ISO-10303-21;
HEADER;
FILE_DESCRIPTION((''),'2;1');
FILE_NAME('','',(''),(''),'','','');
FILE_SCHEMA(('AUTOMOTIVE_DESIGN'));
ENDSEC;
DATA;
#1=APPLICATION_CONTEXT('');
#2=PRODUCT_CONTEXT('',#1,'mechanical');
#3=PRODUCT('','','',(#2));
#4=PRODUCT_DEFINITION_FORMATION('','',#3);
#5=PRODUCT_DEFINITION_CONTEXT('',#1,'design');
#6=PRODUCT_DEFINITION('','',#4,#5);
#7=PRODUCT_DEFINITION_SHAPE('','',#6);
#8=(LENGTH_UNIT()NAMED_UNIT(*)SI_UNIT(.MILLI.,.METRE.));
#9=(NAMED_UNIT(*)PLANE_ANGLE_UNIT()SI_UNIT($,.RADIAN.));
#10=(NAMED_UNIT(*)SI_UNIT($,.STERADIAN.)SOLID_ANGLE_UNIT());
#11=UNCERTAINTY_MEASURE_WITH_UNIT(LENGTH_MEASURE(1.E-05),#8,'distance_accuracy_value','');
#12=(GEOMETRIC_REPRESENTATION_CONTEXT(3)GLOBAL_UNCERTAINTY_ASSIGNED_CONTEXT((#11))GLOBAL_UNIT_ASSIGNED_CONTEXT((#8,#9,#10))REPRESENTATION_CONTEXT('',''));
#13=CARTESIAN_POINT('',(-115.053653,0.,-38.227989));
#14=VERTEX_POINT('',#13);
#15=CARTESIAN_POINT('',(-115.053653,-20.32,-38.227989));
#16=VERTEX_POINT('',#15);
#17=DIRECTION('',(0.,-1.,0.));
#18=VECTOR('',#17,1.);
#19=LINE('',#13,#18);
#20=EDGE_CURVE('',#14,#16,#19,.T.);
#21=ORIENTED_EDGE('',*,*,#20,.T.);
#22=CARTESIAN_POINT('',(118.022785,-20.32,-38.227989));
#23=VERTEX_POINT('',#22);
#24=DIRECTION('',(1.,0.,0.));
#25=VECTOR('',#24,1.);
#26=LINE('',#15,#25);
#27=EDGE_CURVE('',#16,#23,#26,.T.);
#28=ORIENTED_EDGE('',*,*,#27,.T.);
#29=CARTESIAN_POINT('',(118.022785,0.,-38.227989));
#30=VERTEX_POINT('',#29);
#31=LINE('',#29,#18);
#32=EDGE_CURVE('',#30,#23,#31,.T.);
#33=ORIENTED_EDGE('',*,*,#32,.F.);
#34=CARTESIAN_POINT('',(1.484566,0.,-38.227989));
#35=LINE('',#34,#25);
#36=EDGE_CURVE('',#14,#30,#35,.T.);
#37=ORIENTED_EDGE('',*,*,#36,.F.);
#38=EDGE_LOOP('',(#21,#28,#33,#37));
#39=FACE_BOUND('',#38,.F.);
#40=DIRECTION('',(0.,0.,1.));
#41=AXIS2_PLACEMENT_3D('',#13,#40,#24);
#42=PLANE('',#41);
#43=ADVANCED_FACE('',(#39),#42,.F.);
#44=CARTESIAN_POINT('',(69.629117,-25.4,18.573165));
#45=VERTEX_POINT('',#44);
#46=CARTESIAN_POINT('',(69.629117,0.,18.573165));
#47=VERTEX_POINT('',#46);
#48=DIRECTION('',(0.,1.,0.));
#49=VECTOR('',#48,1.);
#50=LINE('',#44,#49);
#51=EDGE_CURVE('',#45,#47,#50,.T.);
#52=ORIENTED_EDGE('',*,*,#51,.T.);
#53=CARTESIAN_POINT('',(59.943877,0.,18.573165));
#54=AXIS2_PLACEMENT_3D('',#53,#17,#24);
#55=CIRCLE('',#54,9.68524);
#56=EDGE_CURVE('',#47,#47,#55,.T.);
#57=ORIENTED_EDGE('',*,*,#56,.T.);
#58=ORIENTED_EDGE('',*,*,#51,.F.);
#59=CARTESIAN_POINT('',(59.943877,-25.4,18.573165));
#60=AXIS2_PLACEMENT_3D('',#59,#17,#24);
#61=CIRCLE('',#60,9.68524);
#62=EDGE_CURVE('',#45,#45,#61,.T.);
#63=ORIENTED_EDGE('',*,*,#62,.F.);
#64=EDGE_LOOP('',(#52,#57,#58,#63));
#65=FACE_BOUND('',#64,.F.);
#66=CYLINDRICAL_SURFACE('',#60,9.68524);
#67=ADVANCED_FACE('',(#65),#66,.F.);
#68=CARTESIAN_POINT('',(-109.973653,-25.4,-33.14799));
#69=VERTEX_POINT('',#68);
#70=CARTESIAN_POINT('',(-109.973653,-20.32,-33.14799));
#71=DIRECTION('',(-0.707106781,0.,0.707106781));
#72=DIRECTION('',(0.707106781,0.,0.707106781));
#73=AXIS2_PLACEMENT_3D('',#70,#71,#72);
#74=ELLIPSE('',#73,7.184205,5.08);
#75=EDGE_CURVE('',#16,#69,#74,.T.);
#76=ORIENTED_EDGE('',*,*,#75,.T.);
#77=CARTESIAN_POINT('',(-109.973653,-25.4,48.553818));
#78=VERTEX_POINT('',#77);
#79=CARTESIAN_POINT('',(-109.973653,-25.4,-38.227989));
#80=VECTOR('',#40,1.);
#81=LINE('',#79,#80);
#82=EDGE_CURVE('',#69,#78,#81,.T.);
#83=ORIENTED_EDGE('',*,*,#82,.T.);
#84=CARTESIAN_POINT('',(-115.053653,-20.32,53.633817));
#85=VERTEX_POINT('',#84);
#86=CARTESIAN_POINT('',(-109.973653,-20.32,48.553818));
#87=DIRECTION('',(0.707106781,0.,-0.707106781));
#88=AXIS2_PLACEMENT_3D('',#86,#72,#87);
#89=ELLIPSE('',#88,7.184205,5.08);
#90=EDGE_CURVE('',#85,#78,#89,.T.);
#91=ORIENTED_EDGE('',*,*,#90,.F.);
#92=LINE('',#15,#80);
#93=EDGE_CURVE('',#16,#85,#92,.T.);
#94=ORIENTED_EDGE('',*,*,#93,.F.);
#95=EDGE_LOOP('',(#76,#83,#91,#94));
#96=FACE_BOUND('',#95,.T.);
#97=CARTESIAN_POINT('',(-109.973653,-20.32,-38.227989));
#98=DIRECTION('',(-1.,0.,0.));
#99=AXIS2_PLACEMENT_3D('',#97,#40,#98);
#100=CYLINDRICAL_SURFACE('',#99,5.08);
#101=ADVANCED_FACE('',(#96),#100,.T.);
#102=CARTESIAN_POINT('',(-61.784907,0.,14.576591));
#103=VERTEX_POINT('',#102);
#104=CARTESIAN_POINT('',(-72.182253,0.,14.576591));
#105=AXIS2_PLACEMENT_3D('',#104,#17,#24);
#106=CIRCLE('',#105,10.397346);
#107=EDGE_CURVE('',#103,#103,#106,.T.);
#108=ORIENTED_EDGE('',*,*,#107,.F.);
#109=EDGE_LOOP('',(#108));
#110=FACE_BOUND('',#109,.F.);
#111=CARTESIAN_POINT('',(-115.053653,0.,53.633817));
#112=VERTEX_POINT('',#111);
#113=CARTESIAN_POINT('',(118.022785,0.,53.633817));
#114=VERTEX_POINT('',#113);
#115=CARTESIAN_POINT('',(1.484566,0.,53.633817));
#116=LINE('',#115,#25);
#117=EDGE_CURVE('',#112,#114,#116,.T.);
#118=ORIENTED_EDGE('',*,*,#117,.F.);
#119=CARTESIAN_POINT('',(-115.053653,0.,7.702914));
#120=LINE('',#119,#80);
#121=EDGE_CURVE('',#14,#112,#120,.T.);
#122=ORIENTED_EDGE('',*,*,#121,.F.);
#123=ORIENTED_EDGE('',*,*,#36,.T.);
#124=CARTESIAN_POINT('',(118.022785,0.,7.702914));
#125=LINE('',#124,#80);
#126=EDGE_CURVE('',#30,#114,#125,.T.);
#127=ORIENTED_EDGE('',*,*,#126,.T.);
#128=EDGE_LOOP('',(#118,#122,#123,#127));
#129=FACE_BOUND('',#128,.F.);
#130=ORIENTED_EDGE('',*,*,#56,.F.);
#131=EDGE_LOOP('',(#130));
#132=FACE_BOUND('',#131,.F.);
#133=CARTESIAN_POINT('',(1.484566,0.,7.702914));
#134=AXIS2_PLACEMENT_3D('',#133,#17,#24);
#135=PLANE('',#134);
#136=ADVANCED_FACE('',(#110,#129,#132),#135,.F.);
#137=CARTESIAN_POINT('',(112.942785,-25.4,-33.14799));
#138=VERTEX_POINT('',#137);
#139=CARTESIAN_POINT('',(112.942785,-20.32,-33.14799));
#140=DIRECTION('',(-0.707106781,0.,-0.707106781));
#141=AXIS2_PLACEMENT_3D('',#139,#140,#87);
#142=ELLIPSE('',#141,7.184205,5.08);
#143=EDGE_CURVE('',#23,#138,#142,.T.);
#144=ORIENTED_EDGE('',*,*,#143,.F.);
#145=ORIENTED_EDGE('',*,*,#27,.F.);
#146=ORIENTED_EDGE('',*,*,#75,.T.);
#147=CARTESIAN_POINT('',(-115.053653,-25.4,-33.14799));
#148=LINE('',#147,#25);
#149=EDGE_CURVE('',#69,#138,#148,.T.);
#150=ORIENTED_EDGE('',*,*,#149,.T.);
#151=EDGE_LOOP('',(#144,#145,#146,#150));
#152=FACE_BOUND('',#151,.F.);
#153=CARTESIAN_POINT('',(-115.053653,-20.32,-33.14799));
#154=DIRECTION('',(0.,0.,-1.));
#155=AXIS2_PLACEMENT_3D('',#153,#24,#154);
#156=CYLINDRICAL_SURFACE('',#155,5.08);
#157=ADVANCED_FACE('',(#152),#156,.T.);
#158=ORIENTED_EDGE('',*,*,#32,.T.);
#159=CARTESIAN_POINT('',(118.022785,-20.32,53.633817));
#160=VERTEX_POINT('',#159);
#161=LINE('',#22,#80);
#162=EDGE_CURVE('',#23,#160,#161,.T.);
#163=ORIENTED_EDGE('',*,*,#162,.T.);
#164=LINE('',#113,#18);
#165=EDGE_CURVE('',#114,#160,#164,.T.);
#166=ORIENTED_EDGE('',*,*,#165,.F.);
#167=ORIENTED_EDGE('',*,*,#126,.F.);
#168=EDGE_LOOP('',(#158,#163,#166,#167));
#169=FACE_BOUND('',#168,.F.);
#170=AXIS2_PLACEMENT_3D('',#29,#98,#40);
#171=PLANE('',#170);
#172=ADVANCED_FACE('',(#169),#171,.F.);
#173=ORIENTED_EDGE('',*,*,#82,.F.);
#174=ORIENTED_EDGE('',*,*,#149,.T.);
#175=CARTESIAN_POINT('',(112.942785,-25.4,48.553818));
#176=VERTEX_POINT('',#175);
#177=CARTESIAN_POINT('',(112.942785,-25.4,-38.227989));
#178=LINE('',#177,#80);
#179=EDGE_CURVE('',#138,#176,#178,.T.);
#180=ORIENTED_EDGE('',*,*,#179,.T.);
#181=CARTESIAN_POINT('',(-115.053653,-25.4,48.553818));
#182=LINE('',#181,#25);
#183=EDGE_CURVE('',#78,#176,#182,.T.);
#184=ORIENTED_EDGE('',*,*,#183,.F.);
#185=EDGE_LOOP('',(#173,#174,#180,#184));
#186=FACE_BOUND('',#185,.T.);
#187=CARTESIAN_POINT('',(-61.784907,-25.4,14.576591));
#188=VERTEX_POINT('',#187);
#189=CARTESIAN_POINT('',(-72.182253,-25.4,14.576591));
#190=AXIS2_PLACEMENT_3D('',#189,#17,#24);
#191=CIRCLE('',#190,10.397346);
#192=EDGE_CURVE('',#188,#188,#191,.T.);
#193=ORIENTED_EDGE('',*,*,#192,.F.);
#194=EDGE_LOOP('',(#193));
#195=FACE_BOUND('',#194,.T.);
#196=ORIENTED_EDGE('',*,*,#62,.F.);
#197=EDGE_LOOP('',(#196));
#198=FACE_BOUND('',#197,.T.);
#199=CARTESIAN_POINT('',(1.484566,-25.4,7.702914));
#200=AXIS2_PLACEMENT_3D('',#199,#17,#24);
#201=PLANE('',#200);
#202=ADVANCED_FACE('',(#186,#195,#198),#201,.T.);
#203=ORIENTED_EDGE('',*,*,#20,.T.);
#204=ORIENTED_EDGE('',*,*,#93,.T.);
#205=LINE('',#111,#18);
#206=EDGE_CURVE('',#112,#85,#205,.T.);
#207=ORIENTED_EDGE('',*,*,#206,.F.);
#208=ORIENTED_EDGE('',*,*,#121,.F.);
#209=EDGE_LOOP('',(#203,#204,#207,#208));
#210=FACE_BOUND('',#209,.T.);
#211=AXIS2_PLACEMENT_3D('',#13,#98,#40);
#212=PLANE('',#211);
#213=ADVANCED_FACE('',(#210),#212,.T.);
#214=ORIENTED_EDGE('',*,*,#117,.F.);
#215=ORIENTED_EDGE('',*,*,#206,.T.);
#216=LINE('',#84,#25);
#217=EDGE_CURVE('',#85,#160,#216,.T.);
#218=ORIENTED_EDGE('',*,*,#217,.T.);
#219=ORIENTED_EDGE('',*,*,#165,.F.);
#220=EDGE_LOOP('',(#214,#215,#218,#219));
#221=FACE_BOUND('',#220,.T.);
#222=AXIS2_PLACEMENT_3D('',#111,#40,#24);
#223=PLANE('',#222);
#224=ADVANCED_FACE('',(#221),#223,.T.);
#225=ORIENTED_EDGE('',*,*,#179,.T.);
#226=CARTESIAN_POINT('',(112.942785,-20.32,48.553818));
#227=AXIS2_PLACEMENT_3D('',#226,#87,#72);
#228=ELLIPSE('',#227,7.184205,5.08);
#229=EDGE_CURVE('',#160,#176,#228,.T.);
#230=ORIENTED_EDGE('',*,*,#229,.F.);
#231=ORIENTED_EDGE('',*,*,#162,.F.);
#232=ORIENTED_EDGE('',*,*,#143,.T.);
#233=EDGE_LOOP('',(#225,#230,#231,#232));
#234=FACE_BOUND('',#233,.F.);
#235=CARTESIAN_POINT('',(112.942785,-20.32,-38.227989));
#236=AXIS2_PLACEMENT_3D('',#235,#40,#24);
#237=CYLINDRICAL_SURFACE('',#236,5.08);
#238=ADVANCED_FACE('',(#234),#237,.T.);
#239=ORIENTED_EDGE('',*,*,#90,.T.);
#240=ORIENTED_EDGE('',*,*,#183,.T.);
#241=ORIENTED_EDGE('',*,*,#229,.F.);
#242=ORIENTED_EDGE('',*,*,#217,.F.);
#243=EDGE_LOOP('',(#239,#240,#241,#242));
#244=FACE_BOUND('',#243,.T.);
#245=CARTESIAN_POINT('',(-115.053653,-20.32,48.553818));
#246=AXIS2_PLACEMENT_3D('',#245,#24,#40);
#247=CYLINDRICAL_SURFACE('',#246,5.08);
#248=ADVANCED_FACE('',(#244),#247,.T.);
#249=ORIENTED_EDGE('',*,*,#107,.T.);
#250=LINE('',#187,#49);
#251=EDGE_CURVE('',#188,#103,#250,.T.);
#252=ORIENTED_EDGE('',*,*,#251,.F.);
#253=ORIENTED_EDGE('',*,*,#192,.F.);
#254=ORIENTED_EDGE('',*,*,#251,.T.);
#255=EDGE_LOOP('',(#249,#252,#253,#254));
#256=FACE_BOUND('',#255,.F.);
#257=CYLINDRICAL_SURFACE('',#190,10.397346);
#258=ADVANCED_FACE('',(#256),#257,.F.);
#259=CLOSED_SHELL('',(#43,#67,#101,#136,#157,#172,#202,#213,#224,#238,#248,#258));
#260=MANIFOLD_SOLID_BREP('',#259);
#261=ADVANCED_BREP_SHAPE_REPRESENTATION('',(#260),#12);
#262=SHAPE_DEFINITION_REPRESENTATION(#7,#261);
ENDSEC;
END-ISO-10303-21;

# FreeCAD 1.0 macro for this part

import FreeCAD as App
import Part
import Sketcher
Q = App.Units.Quantity


def edges_at(feature, points):
    """Names of the edges that pass closest to the given points."""
    edges = feature.Shape.Edges
    near = lambda p: min(range(len(edges)), key=lambda i: edges[i].distToShape(Part.Vertex(*p))[0])
    return sorted({f"Edge{near(p) + 1}" for p in points})

doc = App.newDocument("Part")
body = doc.addObject("PartDesign::Body", "Body")

# Sketch on XZ plane
sketch1 = body.newObject("Sketcher::SketchObject", "Sketch")
sketch1.AttachmentSupport = (doc.getObject("XZ_Plane"), [""])
sketch1.MapMode = "FlatFace"
sketch1.addGeometry([
    Part.LineSegment(App.Vector(-115, 54, 0), App.Vector(-115, -38, 0)),
    Part.LineSegment(App.Vector(-115, -38, 0), App.Vector(118, -38, 0)),
    Part.LineSegment(App.Vector(118, -38, 0), App.Vector(118, 54, 0)),
    Part.LineSegment(App.Vector(118, 54, 0), App.Vector(-115, 54, 0)),
], False)
sketch1.addConstraint([
    Sketcher.Constraint("Coincident", 0, 2, 1, 1),
    Sketcher.Constraint("Coincident", 1, 2, 2, 1),
    Sketcher.Constraint("Coincident", 2, 2, 3, 1),
    Sketcher.Constraint("Coincident", 3, 2, 0, 1),
    Sketcher.Constraint("Vertical", 0),
    Sketcher.Constraint("Horizontal", 1),
    Sketcher.Constraint("Vertical", 2),
    Sketcher.Constraint("Horizontal", 3),
    Sketcher.Constraint("DistanceX", 1, 1, 1, 2, Q("233.076439 mm")),
    Sketcher.Constraint("DistanceY", 0, 2, 0, 1, Q("91.861807 mm")),
    Sketcher.Constraint("DistanceY", 0, 2, -1, 1, Q("38.227989 mm")),
    Sketcher.Constraint("DistanceX", 0, 2, -1, 1, Q("115.053653 mm")),
])
pad1 = body.newObject("PartDesign::Pad", "Pad")
pad1.Profile = sketch1
pad1.Length = Q("1 in")
doc.recompute()

fillet = body.newObject("PartDesign::Fillet", "Fillet")
fillet.Base = (pad1, edges_at(pad1, [
    (1.485, -25.4, 53.634),
    (-115.054, -25.4, 7.703),
    (1.485, -25.4, -38.228),
    (118.023, -25.4, 7.703),
]))
fillet.Radius = Q("0.2 in")

# Sketch on XZ plane
sketch2 = body.newObject("Sketcher::SketchObject", "Sketch001")
sketch2.AttachmentSupport = (doc.getObject("XZ_Plane"), [""])
sketch2.MapMode = "FlatFace"
sketch2.AttachmentOffset = App.Placement(App.Vector(0, 0, 1 * 25.4), App.Rotation())
sketch2.addGeometry([
    Part.Circle(App.Vector(-72, 15, 0), App.Vector(0, 0, 1), 10),
    Part.Circle(App.Vector(60, 19, 0), App.Vector(0, 0, 1), 10),
], False)
sketch2.addConstraint([
    Sketcher.Constraint("Diameter", 1, Q("19.37048 mm")),
    Sketcher.Constraint("Diameter", 0, Q("20.794692 mm")),
    Sketcher.Constraint("DistanceY", -1, 1, 0, 3, Q("14.576591 mm")),
    Sketcher.Constraint("DistanceX", 0, 3, 1, 3, Q("132.12613 mm")),
    Sketcher.Constraint("DistanceX", 0, 3, -1, 1, Q("72.182253 mm")),
    Sketcher.Constraint("DistanceY", -1, 1, 1, 3, Q("18.573165 mm")),
])
pocket1 = body.newObject("PartDesign::Pocket", "Pocket")
pocket1.Profile = sketch2
pocket1.Length = Q("1 in")

doc.recompute()
